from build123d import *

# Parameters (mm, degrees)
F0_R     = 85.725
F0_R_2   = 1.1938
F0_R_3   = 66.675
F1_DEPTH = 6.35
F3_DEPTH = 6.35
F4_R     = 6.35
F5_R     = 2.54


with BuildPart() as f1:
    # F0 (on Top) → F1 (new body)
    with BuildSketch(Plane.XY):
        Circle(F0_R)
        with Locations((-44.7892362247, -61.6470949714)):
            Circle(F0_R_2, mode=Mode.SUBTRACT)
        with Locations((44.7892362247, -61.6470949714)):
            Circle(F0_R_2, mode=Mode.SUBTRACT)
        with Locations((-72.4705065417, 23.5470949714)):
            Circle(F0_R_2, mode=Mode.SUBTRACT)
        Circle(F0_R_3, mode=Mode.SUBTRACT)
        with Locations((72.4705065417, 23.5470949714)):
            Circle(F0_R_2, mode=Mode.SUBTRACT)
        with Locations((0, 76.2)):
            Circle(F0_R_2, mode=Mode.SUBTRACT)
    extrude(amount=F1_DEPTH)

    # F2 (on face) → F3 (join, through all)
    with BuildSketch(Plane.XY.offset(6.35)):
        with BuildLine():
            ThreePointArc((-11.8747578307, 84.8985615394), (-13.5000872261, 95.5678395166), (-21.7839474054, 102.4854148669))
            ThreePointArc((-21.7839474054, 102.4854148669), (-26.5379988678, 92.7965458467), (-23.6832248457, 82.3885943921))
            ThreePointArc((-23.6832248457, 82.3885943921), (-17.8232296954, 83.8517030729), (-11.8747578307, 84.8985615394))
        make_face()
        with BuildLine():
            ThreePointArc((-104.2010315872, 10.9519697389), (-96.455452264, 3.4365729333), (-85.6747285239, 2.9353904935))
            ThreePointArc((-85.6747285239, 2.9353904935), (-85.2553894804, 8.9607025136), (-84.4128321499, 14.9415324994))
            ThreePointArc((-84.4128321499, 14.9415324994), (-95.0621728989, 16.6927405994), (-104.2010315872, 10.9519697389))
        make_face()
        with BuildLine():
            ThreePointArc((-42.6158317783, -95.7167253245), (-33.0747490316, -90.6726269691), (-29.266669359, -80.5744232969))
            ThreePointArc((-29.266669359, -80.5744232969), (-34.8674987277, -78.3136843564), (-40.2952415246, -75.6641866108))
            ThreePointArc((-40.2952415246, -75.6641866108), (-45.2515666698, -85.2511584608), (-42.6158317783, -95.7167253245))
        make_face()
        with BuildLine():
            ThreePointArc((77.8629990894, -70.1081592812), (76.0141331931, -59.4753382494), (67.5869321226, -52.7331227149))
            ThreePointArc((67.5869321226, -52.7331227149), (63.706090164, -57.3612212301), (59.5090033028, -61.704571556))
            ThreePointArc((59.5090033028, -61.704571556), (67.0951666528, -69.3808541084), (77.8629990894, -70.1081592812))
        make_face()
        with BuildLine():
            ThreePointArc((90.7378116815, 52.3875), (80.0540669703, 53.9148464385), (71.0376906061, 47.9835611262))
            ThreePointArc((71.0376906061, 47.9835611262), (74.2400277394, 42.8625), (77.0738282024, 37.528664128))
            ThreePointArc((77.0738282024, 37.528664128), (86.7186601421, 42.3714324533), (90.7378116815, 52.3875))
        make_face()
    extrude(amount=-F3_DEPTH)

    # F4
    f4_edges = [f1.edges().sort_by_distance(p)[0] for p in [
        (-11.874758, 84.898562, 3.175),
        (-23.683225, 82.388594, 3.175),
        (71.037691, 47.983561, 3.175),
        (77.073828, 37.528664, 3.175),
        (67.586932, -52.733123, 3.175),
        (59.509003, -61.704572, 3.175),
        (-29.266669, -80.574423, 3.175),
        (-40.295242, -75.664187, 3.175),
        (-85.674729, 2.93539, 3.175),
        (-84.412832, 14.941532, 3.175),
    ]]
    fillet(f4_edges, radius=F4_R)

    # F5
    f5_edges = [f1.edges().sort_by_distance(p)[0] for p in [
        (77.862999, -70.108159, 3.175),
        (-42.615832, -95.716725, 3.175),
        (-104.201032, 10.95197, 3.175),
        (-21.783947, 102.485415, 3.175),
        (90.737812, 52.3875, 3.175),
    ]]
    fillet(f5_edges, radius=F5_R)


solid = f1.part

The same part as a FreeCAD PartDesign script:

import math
import FreeCAD as App
import Part
import Sketcher
Q = App.Units.Quantity


def edges_at(feature, points):
    """Names of the edges that pass closest to the given points."""
    edges = feature.Shape.Edges
    near = lambda p: min(range(len(edges)), key=lambda i: edges[i].distToShape(Part.Vertex(*p))[0])
    return sorted({f"Edge{near(p) + 1}" for p in points})

doc = App.newDocument("Part")
params = doc.addObject("Spreadsheet::Sheet", "Params")
for row, (alias, value) in enumerate([
    ("sketch1_diameter", "6.75 in"),
    ("sketch1_diameter2", "5.25 in"),
    ("sketch1_diameter3", "0.094 in"),
    ("pad1_length", "0.25 in"),
    ("sketch2_radius", "0.6 in"),
    ("sketch2_radius2", "3.375 in"),
    ("pad2_length", "0.25 in"),
    ("fillet_radius", "0.25 in"),
    ("fillet2_radius", "0.1 in"),
], start=1):
    params.set(f"A{row}", alias)
    params.set(f"B{row}", "=" + value)
    params.setAlias(f"B{row}", alias)

body = doc.addObject("PartDesign::Body", "Body")

sketch1 = body.newObject("Sketcher::SketchObject", "Sketch")
sketch1.AttachmentSupport = (doc.getObject("XY_Plane"), [""])
sketch1.MapMode = "FlatFace"
sketch1.addGeometry([
    Part.Circle(App.Vector(0, 0, 0), App.Vector(0, 0, 1), 85.725),
    Part.Circle(App.Vector(-44.789236, -61.647095, 0), App.Vector(0, 0, 1), 1.1938),
    Part.Circle(App.Vector(44.789236, -61.647095, 0), App.Vector(0, 0, 1), 1.1938),
    Part.Circle(App.Vector(0, 0, 0), App.Vector(0, 0, 1), 66.675),
    Part.Circle(App.Vector(-72.470507, 23.547095, 0), App.Vector(0, 0, 1), 1.1938),
    Part.Circle(App.Vector(72.470507, 23.547095, 0), App.Vector(0, 0, 1), 1.1938),
    Part.Circle(App.Vector(0, 76.2, 0), App.Vector(0, 0, 1), 1.1938),
], False)
sketch1.addConstraint([
    Sketcher.Constraint("Coincident", 0, 3, -1, 1),
    Sketcher.Constraint("Coincident", 3, 3, -1, 1),
    Sketcher.Constraint("Equal", 1, 2),
    Sketcher.Constraint("Equal", 2, 4),
    Sketcher.Constraint("Equal", 4, 5),
    Sketcher.Constraint("Equal", 5, 6),
    Sketcher.Constraint("Symmetric", 1, 3, 2, 3, -2),
    Sketcher.Constraint("Symmetric", 4, 3, 5, 3, -2),
    Sketcher.Constraint("PointOnObject", 6, 3, -2),
    Sketcher.Constraint("Diameter", 0, Q("6.75 in")),
    Sketcher.Constraint("Diameter", 3, Q("5.25 in")),
    Sketcher.Constraint("Diameter", 1, Q("0.094 in")),
    Sketcher.Constraint("DistanceY", -1, 1, 6, 3, Q("3 in")),
    Sketcher.Constraint("DistanceX", 4, 3, 1, 3, Q("27.68127 mm")),
    Sketcher.Constraint("DistanceY", 1, 3, 4, 3, Q("85.19419 mm")),
    Sketcher.Constraint("DistanceX", 1, 3, -1, 1, Q("44.789236 mm")),
    Sketcher.Constraint("DistanceY", 1, 3, -1, 1, Q("61.647095 mm")),
])
sketch1.setExpression("Constraints[9]", "Params.sketch1_diameter")
sketch1.setExpression("Constraints[10]", "Params.sketch1_diameter2")
sketch1.setExpression("Constraints[11]", "Params.sketch1_diameter3")
pad1 = body.newObject("PartDesign::Pad", "Pad")
pad1.Profile = sketch1
pad1.setExpression("Length", "Params.pad1_length")

sketch2 = body.newObject("Sketcher::SketchObject", "Sketch001")
sketch2.AttachmentSupport = (doc.getObject("XY_Plane"), [""])
sketch2.MapMode = "FlatFace"
sketch2.AttachmentOffset = App.Placement(App.Vector(0, 0, 0.25 * 25.4), App.Rotation())
sketch2.addGeometry([
    Part.ArcOfCircle(Part.Circle(App.Vector(-26.777545, 88.086749, 0), App.Vector(0, 0, 1), 15.24), math.radians(-12.075395), math.radians(70.872957)),
    Part.ArcOfCircle(Part.Circle(App.Vector(-11.365604, 91.362658, 0), App.Vector(0, 0, 1), 15.24), math.radians(133.127043), math.radians(216.075395)),
    Part.ArcOfCircle(Part.Circle(App.Vector(0, 0, 0), App.Vector(0, 0, 1), 85.725), math.radians(97.962302), math.radians(106.037698)),
    Part.ArcOfCircle(Part.Circle(App.Vector(-90.403216, 17.423282, 0), App.Vector(0, 0, 1), 15.24), math.radians(-154.872957), math.radians(-71.924605)),
    Part.ArcOfCircle(Part.Circle(App.Vector(0, 0, 0), App.Vector(0, 0, 1), 85.725), math.radians(169.962302), math.radians(178.037698)),
    Part.ArcOfCircle(Part.Circle(App.Vector(-92.050193, 1.753344, 0), App.Vector(0, 0, 1), 15.24), math.radians(59.924605), math.radians(142.872957)),
    Part.ArcOfCircle(Part.Circle(App.Vector(-44.506656, -80.594477, 0), App.Vector(0, 0, 1), 15.24), math.radians(-82.872957), math.radians(0.075395)),
    Part.ArcOfCircle(Part.Circle(App.Vector(0, 0, 0), App.Vector(0, 0, 1), 85.725), math.radians(-118.037698), math.radians(-109.962302)),
    Part.ArcOfCircle(Part.Circle(App.Vector(-30.112603, -87.003123, 0), App.Vector(0, 0, 1), 15.24), math.radians(131.924605), math.radians(214.872957)),
    Part.ArcOfCircle(Part.Circle(App.Vector(62.89659, -67.233409, 0), App.Vector(0, 0, 1), 15.24), math.radians(-10.872957), math.radians(72.075395)),
    Part.ArcOfCircle(Part.Circle(App.Vector(0, 0, 0), App.Vector(0, 0, 1), 85.725), math.radians(-46.037698), math.radians(-37.962302)),
    Part.ArcOfCircle(Part.Circle(App.Vector(73.439581, -55.524231, 0), App.Vector(0, 0, 1), 15.24), math.radians(-156.075395), math.radians(-73.127043)),
    Part.ArcOfCircle(Part.Circle(App.Vector(83.378886, 39.041946, 0), App.Vector(0, 0, 1), 15.24), math.radians(61.127043), math.radians(144.075395)),
    Part.ArcOfCircle(Part.Circle(App.Vector(0, 0, 0), App.Vector(0, 0, 1), 85.725), math.radians(25.962302), math.radians(34.037698)),
    Part.ArcOfCircle(Part.Circle(App.Vector(75.50076, 52.687261, 0), App.Vector(0, 0, 1), 15.24), math.radians(-84.075395), math.radians(-1.127043)),
], False)
sketch2.addConstraint([
    Sketcher.Constraint("Coincident", 0, 2, 1, 1),
    Sketcher.Constraint("Coincident", 1, 2, 2, 2),
    Sketcher.Constraint("Coincident", 2, 1, 0, 1),
    Sketcher.Constraint("Coincident", 3, 2, 4, 2),
    Sketcher.Constraint("Coincident", 4, 1, 5, 1),
    Sketcher.Constraint("Coincident", 5, 2, 3, 1),
    Sketcher.Constraint("Coincident", 6, 2, 7, 2),
    Sketcher.Constraint("Coincident", 7, 1, 8, 1),
    Sketcher.Constraint("Coincident", 8, 2, 6, 1),
    Sketcher.Constraint("Coincident", 9, 2, 10, 2),
    Sketcher.Constraint("Coincident", 10, 1, 11, 1),
    Sketcher.Constraint("Coincident", 11, 2, 9, 1),
    Sketcher.Constraint("Coincident", 12, 2, 13, 2),
    Sketcher.Constraint("Coincident", 13, 1, 14, 1),
    Sketcher.Constraint("Coincident", 14, 2, 12, 1),
    Sketcher.Constraint("Coincident", 2, 3, -1, 1),
    Sketcher.Constraint("Coincident", 4, 3, -1, 1),
    Sketcher.Constraint("Coincident", 7, 3, -1, 1),
    Sketcher.Constraint("Coincident", 10, 3, -1, 1),
    Sketcher.Constraint("Coincident", 13, 3, -1, 1),
    Sketcher.Constraint("Equal", 0, 1),
    Sketcher.Constraint("Equal", 1, 3),
    Sketcher.Constraint("Equal", 2, 4),
    Sketcher.Constraint("Equal", 3, 5),
    Sketcher.Constraint("Equal", 5, 6),
    Sketcher.Constraint("Equal", 4, 7),
    Sketcher.Constraint("Equal", 6, 8),
    Sketcher.Constraint("Equal", 8, 9),
    Sketcher.Constraint("Equal", 7, 10),
    Sketcher.Constraint("Equal", 9, 11),
    Sketcher.Constraint("Equal", 11, 12),
    Sketcher.Constraint("Equal", 10, 13),
    Sketcher.Constraint("Equal", 12, 14),
    Sketcher.Constraint("Radius", 0, Q("0.6 in")),
    Sketcher.Constraint("Radius", 2, Q("3.375 in")),
    Sketcher.Constraint("DistanceY", -1, 1, 14, 2, Q("2.0625 in")),
    Sketcher.Constraint("DistanceX", -1, 1, 11, 2, Q("77.862999 mm")),
    Sketcher.Constraint("DistanceX", 5, 2, 4, 1, Q("19.788199 mm")),
    Sketcher.Constraint("DistanceY", 8, 3, 6, 2, Q("6.428699 mm")),
    Sketcher.Constraint("DistanceY", 12, 2, 14, 3, Q("4.7037 mm")),
    Sketcher.Constraint("DistanceY", -1, 1, 0, 3, Q("88.086749 mm")),
    Sketcher.Constraint("DistanceX", -1, 1, 9, 3, Q("62.89659 mm")),
    Sketcher.Constraint("DistanceY", 9, 3, -1, 1, Q("67.233409 mm")),
    Sketcher.Constraint("DistanceX", -1, 1, 11, 3, Q("73.439581 mm")),
    Sketcher.Constraint("DistanceX", -1, 1, 14, 3, Q("75.50076 mm")),
    Sketcher.Constraint("DistanceY", -1, 1, 14, 3, Q("52.687261 mm")),
    Sketcher.Constraint("DistanceY", -1, 1, 2, 1, Q("84.898562 mm")),
    Sketcher.Constraint("DistanceX", 3, 2, -1, 1, Q("85.674729 mm")),
    Sketcher.Constraint("DistanceX", 5, 2, -1, 1, Q("104.201032 mm")),
    Sketcher.Constraint("DistanceY", -1, 1, 5, 2, Q("10.95197 mm")),
    Sketcher.Constraint("DistanceX", 6, 2, -1, 1, Q("29.266669 mm")),
    Sketcher.Constraint("DistanceX", 7, 1, -1, 1, Q("40.295242 mm")),
    Sketcher.Constraint("DistanceX", 8, 2, -1, 1, Q("42.615832 mm")),
    Sketcher.Constraint("DistanceX", 0, 3, 1, 3, Q("15.411941 mm")),
    Sketcher.Constraint("DistanceY", 0, 3, 1, 3, Q("3.275909 mm")),
])
sketch2.setExpression("Constraints[33]", "Params.sketch2_radius")
sketch2.setExpression("Constraints[34]", "Params.sketch2_radius2")
pad2 = body.newObject("PartDesign::Pad", "Pad001")
pad2.Profile = sketch2
pad2.setExpression("Length", "Params.pad2_length")
pad2.Reversed = True
doc.recompute()

fillet = body.newObject("PartDesign::Fillet", "Fillet")
fillet.Base = (pad2, edges_at(pad2, [
    (-11.875, 84.899, 3.175),
    (-23.683, 82.389, 3.175),
    (71.038, 47.984, 3.175),
    (77.074, 37.529, 3.175),
    (67.587, -52.733, 3.175),
    (59.509, -61.705, 3.175),
    (-29.267, -80.574, 3.175),
    (-40.295, -75.664, 3.175),
    (-85.675, 2.935, 3.175),
    (-84.413, 14.942, 3.175),
]))
fillet.setExpression("Radius", "Params.fillet_radius")
doc.recompute()

fillet2 = body.newObject("PartDesign::Fillet", "Fillet001")
fillet2.Base = (fillet, edges_at(fillet, [
    (77.863, -70.108, 3.175),
    (-42.616, -95.717, 3.175),
    (-104.201, 10.952, 3.175),
    (-21.784, 102.485, 3.175),
    (90.738, 52.388, 3.175),
]))
fillet2.setExpression("Radius", "Params.fillet2_radius")

doc.recompute()
